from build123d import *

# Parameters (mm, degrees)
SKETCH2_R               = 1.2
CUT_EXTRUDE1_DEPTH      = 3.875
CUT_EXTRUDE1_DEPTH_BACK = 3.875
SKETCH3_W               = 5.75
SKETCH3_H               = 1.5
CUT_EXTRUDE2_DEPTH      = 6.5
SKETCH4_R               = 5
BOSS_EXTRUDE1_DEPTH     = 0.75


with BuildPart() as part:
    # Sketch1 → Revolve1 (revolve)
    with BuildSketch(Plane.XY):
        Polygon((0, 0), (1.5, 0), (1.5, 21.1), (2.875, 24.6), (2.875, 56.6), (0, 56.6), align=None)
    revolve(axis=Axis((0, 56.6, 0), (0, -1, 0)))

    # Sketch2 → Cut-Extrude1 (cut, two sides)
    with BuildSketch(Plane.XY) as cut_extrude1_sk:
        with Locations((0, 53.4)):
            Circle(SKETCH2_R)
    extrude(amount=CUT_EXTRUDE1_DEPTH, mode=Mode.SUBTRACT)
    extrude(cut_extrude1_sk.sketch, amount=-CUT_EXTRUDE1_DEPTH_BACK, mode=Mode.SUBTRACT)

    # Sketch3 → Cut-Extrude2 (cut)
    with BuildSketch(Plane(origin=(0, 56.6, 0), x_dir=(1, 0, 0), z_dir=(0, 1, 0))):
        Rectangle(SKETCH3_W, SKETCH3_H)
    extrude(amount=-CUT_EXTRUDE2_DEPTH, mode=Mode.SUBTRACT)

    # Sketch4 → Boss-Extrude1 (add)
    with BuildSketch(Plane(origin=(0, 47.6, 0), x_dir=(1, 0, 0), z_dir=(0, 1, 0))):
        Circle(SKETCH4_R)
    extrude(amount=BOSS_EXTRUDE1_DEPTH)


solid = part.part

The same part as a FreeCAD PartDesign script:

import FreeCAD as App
import Part
import Sketcher
from FreeCAD import Vector


def add_polygon(sketch, points):
    """Adds a closed chain of lines whose ends are joined by coincident constraints."""
    first, n = sketch.GeometryCount, len(points)
    for a, b in zip(points, points[1:] + points[:1]):
        sketch.addGeometry(Part.LineSegment(App.Vector(*a, 0), App.Vector(*b, 0)), False)
    for i in range(n):
        sketch.addConstraint(Sketcher.Constraint("Coincident", first + i, 2, first + (i + 1) % n, 1))

doc = App.newDocument("Part")
params = doc.addObject("Spreadsheet::Sheet", "Params")
for row, (alias, value) in enumerate([
    ("sketch1_height", "32 mm"),
    ("sketch1_width", "1.5 mm"),
    ("sketch1_height2", "21.1 mm"),
    ("sketch1_height3", "56.6 mm"),
    ("revolution_angle", "360 deg"),
    ("sketch2_diameter", "2.4 mm"),
    ("sketch3_height", "1.5 mm"),
    ("sketch3_width", "5.75 mm"),
    ("pocket2_length", "6.5 mm"),
    ("sketch4_diameter", "10 mm"),
    ("pad1_length", "0.75 mm"),
], start=1):
    params.set(f"A{row}", alias)
    params.set(f"B{row}", "=" + value)
    params.setAlias(f"B{row}", alias)

body = doc.addObject("PartDesign::Body", "Body")

# Sketch on XY plane
sketch1 = body.newObject("Sketcher::SketchObject", "Sketch")
sketch1.AttachmentSupport = (doc.getObject("XY_Plane"), [""])
sketch1.MapMode = "FlatFace"
add_polygon(sketch1, [(0, 0), (1.5, 0), (1.5, 21.1), (2.9, 24.6), (2.9, 56.6), (0, 56.6)])  # lines 0-5
sketch1.addConstraint([
    Sketcher.Constraint("Horizontal", 0),
    Sketcher.Constraint("Vertical", 1),
    Sketcher.Constraint("Vertical", 3),
    Sketcher.Constraint("Horizontal", 4),
    Sketcher.Constraint("Vertical", 5),
    Sketcher.Constraint("Coincident", 5, 2, -1, 1),
    Sketcher.Constraint("DistanceY", 3, 1, 3, 2, 32.0),
    Sketcher.Constraint("DistanceX", 0, 1, 0, 2, 1.5),
    Sketcher.Constraint("DistanceY", 1, 1, 1, 2, 21.1),
    Sketcher.Constraint("DistanceY", 5, 2, 5, 1, 56.6),
    Sketcher.Constraint("DistanceX", 4, 2, 4, 1, 2.875),
])
sketch1.setExpression("Constraints[12]", "Params.sketch1_height")
sketch1.setExpression("Constraints[13]", "Params.sketch1_width")
sketch1.setExpression("Constraints[14]", "Params.sketch1_height2")
sketch1.setExpression("Constraints[15]", "Params.sketch1_height3")
revolution = body.newObject("PartDesign::Revolution", "Revolution")
revolution.Profile = sketch1
revolution.ReferenceAxis = (sketch1, ["V_Axis"])
revolution.setExpression("Angle", "Params.revolution_angle")

# Sketch on XY plane
sketch2 = body.newObject("Sketcher::SketchObject", "Sketch001")
sketch2.AttachmentSupport = (doc.getObject("XY_Plane"), [""])
sketch2.MapMode = "FlatFace"
sketch2.addGeometry(Part.Circle(Vector(0, 53.4, 0), Vector(0, 0, 1), 1.2), False)
sketch2.addConstraint([
    Sketcher.Constraint("PointOnObject", 0, 3, -2),
    Sketcher.Constraint("Diameter", 0, 2.4),
    Sketcher.Constraint("DistanceY", -1, 1, 0, 3, 53.4),
])
sketch2.setExpression("Constraints[1]", "Params.sketch2_diameter")
pocket1 = body.newObject("PartDesign::Pocket", "Pocket")
pocket1.Profile = sketch2
pocket1.Type = "ThroughAll"
pocket1.Midplane = True

# Sketch on XZ plane
sketch3 = body.newObject("Sketcher::SketchObject", "Sketch002")
sketch3.AttachmentSupport = (doc.getObject("XZ_Plane"), [""])
sketch3.MapMode = "FlatFace"
sketch3.AttachmentOffset = App.Placement(Vector(0, 0, -56.6), App.Rotation())
add_polygon(sketch3, [(-2.9, -0.8), (-2.9, 0.8), (2.9, 0.8), (2.9, -0.8)])  # lines 0-3
sketch3.addConstraint([
    Sketcher.Constraint("Vertical", 0),
    Sketcher.Constraint("Horizontal", 1),
    Sketcher.Constraint("Vertical", 2),
    Sketcher.Constraint("Horizontal", 3),
    Sketcher.Constraint("Symmetric", 0, 2, 2, 2, -1, 1),
    Sketcher.Constraint("DistanceY", 0, 1, 0, 2, 1.5),
    Sketcher.Constraint("DistanceX", 1, 1, 1, 2, 5.75),
])
sketch3.setExpression("Constraints[9]", "Params.sketch3_height")
sketch3.setExpression("Constraints[10]", "Params.sketch3_width")
pocket2 = body.newObject("PartDesign::Pocket", "Pocket001")
pocket2.Profile = sketch3
pocket2.setExpression("Length", "Params.pocket2_length")
pocket2.Reversed = True

# Sketch on XZ plane
sketch4 = body.newObject("Sketcher::SketchObject", "Sketch003")
sketch4.AttachmentSupport = (doc.getObject("XZ_Plane"), [""])
sketch4.MapMode = "FlatFace"
sketch4.AttachmentOffset = App.Placement(Vector(0, 0, -47.6), App.Rotation())
sketch4.addGeometry(Part.Circle(Vector(0, 0, 0), Vector(0, 0, 1), 5), False)
sketch4.addConstraint([
    Sketcher.Constraint("Coincident", 0, 3, -1, 1),
    Sketcher.Constraint("Diameter", 0, 10.0),
])
sketch4.setExpression("Constraints[1]", "Params.sketch4_diameter")
pad1 = body.newObject("PartDesign::Pad", "Pad")
pad1.Profile = sketch4
pad1.setExpression("Length", "Params.pad1_length")
pad1.Reversed = True

doc.recompute()
